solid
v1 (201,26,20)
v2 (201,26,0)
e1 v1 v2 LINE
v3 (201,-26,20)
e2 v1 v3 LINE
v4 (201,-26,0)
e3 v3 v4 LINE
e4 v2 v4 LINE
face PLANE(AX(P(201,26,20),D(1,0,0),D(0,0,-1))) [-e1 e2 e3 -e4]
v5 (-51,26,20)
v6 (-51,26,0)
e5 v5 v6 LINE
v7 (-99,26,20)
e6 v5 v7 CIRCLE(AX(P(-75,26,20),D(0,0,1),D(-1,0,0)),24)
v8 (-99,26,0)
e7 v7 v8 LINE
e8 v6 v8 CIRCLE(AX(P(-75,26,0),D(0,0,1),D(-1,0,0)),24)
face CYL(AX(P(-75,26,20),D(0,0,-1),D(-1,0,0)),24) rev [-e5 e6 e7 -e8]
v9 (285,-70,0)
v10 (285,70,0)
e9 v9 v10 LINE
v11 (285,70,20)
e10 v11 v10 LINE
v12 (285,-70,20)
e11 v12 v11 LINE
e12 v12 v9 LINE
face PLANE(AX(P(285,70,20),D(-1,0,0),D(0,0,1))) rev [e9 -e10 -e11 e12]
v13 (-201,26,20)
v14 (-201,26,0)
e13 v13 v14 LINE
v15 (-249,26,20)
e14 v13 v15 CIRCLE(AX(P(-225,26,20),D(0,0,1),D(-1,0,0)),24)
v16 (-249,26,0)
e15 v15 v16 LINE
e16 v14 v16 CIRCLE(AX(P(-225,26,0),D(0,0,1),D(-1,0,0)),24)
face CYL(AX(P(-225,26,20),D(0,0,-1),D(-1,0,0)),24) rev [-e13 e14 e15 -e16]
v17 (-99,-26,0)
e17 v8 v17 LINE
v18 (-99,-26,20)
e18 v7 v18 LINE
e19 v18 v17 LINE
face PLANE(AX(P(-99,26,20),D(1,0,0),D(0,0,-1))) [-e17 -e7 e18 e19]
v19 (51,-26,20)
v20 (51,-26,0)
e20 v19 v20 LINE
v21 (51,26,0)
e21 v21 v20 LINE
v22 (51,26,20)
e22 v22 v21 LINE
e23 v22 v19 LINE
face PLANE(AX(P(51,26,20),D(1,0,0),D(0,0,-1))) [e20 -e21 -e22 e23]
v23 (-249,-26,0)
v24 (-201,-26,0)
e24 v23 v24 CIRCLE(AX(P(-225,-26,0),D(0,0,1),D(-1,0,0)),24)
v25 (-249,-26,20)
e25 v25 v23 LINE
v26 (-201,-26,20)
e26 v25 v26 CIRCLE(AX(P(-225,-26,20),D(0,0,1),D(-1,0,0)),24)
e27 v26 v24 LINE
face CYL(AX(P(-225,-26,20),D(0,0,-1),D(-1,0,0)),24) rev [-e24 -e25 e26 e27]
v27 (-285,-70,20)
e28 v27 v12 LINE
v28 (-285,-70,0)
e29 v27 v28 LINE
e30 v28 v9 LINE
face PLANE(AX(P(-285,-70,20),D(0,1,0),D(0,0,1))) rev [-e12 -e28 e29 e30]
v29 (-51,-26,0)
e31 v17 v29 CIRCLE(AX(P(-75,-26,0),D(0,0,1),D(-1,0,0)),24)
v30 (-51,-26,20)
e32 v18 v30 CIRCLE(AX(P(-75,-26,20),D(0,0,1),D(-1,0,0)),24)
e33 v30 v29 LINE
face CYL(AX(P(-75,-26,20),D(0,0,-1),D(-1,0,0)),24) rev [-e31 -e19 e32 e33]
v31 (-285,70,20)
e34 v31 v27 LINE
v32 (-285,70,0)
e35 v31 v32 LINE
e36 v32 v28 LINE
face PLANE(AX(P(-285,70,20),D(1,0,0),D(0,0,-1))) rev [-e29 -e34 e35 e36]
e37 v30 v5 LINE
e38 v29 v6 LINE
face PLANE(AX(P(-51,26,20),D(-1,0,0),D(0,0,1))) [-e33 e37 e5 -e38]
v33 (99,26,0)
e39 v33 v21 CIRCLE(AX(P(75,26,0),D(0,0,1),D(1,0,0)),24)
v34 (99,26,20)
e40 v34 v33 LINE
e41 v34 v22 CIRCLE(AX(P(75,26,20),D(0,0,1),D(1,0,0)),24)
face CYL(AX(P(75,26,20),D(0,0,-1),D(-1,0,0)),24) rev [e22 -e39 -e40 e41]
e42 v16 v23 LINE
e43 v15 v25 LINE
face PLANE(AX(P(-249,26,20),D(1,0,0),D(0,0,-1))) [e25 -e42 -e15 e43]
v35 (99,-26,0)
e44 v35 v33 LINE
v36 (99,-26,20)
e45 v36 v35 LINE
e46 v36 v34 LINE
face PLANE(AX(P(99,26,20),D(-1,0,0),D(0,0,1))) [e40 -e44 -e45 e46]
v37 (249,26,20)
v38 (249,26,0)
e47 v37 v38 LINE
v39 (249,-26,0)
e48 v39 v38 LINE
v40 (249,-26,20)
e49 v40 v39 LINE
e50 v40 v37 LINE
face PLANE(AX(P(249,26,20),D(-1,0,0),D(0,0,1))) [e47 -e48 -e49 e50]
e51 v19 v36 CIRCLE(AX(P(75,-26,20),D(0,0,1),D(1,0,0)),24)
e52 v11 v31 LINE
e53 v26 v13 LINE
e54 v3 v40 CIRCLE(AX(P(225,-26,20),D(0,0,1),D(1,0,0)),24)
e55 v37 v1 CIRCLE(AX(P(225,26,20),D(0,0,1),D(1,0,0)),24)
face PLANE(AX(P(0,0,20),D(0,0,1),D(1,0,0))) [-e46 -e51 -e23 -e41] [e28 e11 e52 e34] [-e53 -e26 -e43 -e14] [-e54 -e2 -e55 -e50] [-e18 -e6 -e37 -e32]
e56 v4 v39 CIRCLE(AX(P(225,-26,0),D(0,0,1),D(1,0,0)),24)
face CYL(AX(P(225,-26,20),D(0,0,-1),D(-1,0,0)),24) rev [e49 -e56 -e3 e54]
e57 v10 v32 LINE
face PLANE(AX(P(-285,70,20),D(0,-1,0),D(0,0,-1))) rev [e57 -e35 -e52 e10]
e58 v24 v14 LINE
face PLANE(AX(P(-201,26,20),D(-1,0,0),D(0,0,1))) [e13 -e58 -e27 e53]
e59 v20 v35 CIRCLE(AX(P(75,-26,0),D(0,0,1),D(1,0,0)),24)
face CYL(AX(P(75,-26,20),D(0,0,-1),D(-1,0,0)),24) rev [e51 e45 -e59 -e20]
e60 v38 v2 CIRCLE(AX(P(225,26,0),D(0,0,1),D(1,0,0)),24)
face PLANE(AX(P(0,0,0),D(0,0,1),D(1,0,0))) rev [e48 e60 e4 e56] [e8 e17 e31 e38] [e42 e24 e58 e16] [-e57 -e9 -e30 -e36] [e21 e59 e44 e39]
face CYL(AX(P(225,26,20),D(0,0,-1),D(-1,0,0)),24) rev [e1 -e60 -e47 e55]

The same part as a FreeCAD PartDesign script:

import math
import FreeCAD as App
import Part
import Sketcher
from FreeCAD import Vector


def add_polygon(sketch, points):
    """Adds a closed chain of lines whose ends are joined by coincident constraints."""
    first, n = sketch.GeometryCount, len(points)
    for a, b in zip(points, points[1:] + points[:1]):
        sketch.addGeometry(Part.LineSegment(App.Vector(*a, 0), App.Vector(*b, 0)), False)
    for i in range(n):
        sketch.addConstraint(Sketcher.Constraint("Coincident", first + i, 2, first + (i + 1) % n, 1))

doc = App.newDocument("Part")
body = doc.addObject("PartDesign::Body", "Body")

# Sketch on XY plane
sketch1 = body.newObject("Sketcher::SketchObject", "Sketch")
sketch1.AttachmentSupport = (doc.getObject("XY_Plane"), [""])
sketch1.MapMode = "FlatFace"
add_polygon(sketch1, [(-285, 70), (-285, -70), (285, -70), (285, 70)])  # lines 0-3
sketch1.addGeometry(Part.LineSegment(Vector(-249, -26, 0), Vector(-249, 26, 0)), False)  # 4
sketch1.addGeometry(Part.ArcOfCircle(Part.Circle(Vector(-225, 26, 0), Vector(0, 0, 1), 24), math.radians(0), math.radians(180)), False)  # 5
sketch1.addGeometry(Part.LineSegment(Vector(-201, 26, 0), Vector(-201, -26, 0)), False)  # 6
sketch1.addGeometry(Part.ArcOfCircle(Part.Circle(Vector(-225, -26, 0), Vector(0, 0, 1), 24), math.radians(180), math.radians(360)), False)  # 7
sketch1.addGeometry(Part.LineSegment(Vector(-99, -26, 0), Vector(-99, 26, 0)), False)  # 8
sketch1.addGeometry(Part.ArcOfCircle(Part.Circle(Vector(-75, 26, 0), Vector(0, 0, 1), 24), math.radians(0), math.radians(180)), False)  # 9
sketch1.addGeometry(Part.LineSegment(Vector(-51, 26, 0), Vector(-51, -26, 0)), False)  # 10
sketch1.addGeometry(Part.ArcOfCircle(Part.Circle(Vector(-75, -26, 0), Vector(0, 0, 1), 24), math.radians(180), math.radians(360)), False)  # 11
sketch1.addGeometry(Part.ArcOfCircle(Part.Circle(Vector(75, 26, 0), Vector(0, 0, 1), 24), math.radians(0), math.radians(180)), False)  # 12
sketch1.addGeometry(Part.LineSegment(Vector(99, 26, 0), Vector(99, -26, 0)), False)  # 13
sketch1.addGeometry(Part.ArcOfCircle(Part.Circle(Vector(75, -26, 0), Vector(0, 0, 1), 24), math.radians(180), math.radians(360)), False)  # 14
sketch1.addGeometry(Part.LineSegment(Vector(51, -26, 0), Vector(51, 26, 0)), False)  # 15
sketch1.addGeometry(Part.ArcOfCircle(Part.Circle(Vector(225, 26, 0), Vector(0, 0, 1), 24), math.radians(0), math.radians(180)), False)  # 16
sketch1.addGeometry(Part.LineSegment(Vector(249, 26, 0), Vector(249, -26, 0)), False)  # 17
sketch1.addGeometry(Part.ArcOfCircle(Part.Circle(Vector(225, -26, 0), Vector(0, 0, 1), 24), math.radians(180), math.radians(360)), False)  # 18
sketch1.addGeometry(Part.LineSegment(Vector(201, -26, 0), Vector(201, 26, 0)), False)  # 19
sketch1.addConstraint([
    Sketcher.Constraint("Tangent", 4, 2, 5, 2),
    Sketcher.Constraint("Tangent", 5, 1, 6, 1),
    Sketcher.Constraint("Tangent", 6, 2, 7, 2),
    Sketcher.Constraint("Tangent", 7, 1, 4, 1),
    Sketcher.Constraint("Tangent", 8, 2, 9, 2),
    Sketcher.Constraint("Tangent", 9, 1, 10, 1),
    Sketcher.Constraint("Tangent", 10, 2, 11, 2),
    Sketcher.Constraint("Tangent", 11, 1, 8, 1),
    Sketcher.Constraint("Tangent", 12, 1, 13, 1),
    Sketcher.Constraint("Tangent", 13, 2, 14, 2),
    Sketcher.Constraint("Tangent", 14, 1, 15, 1),
    Sketcher.Constraint("Tangent", 15, 2, 12, 2),
    Sketcher.Constraint("Tangent", 16, 1, 17, 1),
    Sketcher.Constraint("Tangent", 17, 2, 18, 2),
    Sketcher.Constraint("Tangent", 18, 1, 19, 1),
    Sketcher.Constraint("Tangent", 19, 2, 16, 2),
    Sketcher.Constraint("Vertical", 0),
    Sketcher.Constraint("Horizontal", 1),
    Sketcher.Constraint("Vertical", 2),
    Sketcher.Constraint("Horizontal", 3),
    Sketcher.Constraint("Vertical", 4),
    Sketcher.Constraint("Vertical", 6),
    Sketcher.Constraint("Vertical", 8),
    Sketcher.Constraint("Vertical", 10),
    Sketcher.Constraint("Vertical", 13),
    Sketcher.Constraint("Vertical", 15),
    Sketcher.Constraint("Vertical", 17),
    Sketcher.Constraint("Vertical", 19),
    Sketcher.Constraint("Equal", 7, 9),
    Sketcher.Constraint("Equal", 11, 12),
    Sketcher.Constraint("Equal", 14, 16),
    Sketcher.Constraint("Symmetric", 11, 3, 12, 3, -1, 1),
    Sketcher.Constraint("Symmetric", 7, 3, 16, 3, -1, 1),
    Sketcher.Constraint("Symmetric", 0, 2, 2, 2, -1, 1),
    Sketcher.Constraint("Horizontal", 5, 3, 9, 3),
    Sketcher.Constraint("Horizontal", 7, 3, 11, 3),
    Sketcher.Constraint("Horizontal", 9, 3, 12, 3),
    Sketcher.Constraint("Horizontal", 11, 3, 14, 3),
    Sketcher.Constraint("Horizontal", 14, 3, 18, 3),
    Sketcher.Constraint("Radius", 5, 24.0),
    Sketcher.Constraint("DistanceX", 1, 1, 1, 2, 570.0),
    Sketcher.Constraint("DistanceY", 0, 2, 0, 1, 140.0),
    Sketcher.Constraint("DistanceY", 4, 1, 4, 2, 52.0),
    Sketcher.Constraint("DistanceX", 5, 3, -1, 1, 225.0),
    Sketcher.Constraint("DistanceX", 9, 3, -1, 1, 75.0),
])
pad1 = body.newObject("PartDesign::Pad", "Pad")
pad1.Profile = sketch1
pad1.Length = 20

doc.recompute()
